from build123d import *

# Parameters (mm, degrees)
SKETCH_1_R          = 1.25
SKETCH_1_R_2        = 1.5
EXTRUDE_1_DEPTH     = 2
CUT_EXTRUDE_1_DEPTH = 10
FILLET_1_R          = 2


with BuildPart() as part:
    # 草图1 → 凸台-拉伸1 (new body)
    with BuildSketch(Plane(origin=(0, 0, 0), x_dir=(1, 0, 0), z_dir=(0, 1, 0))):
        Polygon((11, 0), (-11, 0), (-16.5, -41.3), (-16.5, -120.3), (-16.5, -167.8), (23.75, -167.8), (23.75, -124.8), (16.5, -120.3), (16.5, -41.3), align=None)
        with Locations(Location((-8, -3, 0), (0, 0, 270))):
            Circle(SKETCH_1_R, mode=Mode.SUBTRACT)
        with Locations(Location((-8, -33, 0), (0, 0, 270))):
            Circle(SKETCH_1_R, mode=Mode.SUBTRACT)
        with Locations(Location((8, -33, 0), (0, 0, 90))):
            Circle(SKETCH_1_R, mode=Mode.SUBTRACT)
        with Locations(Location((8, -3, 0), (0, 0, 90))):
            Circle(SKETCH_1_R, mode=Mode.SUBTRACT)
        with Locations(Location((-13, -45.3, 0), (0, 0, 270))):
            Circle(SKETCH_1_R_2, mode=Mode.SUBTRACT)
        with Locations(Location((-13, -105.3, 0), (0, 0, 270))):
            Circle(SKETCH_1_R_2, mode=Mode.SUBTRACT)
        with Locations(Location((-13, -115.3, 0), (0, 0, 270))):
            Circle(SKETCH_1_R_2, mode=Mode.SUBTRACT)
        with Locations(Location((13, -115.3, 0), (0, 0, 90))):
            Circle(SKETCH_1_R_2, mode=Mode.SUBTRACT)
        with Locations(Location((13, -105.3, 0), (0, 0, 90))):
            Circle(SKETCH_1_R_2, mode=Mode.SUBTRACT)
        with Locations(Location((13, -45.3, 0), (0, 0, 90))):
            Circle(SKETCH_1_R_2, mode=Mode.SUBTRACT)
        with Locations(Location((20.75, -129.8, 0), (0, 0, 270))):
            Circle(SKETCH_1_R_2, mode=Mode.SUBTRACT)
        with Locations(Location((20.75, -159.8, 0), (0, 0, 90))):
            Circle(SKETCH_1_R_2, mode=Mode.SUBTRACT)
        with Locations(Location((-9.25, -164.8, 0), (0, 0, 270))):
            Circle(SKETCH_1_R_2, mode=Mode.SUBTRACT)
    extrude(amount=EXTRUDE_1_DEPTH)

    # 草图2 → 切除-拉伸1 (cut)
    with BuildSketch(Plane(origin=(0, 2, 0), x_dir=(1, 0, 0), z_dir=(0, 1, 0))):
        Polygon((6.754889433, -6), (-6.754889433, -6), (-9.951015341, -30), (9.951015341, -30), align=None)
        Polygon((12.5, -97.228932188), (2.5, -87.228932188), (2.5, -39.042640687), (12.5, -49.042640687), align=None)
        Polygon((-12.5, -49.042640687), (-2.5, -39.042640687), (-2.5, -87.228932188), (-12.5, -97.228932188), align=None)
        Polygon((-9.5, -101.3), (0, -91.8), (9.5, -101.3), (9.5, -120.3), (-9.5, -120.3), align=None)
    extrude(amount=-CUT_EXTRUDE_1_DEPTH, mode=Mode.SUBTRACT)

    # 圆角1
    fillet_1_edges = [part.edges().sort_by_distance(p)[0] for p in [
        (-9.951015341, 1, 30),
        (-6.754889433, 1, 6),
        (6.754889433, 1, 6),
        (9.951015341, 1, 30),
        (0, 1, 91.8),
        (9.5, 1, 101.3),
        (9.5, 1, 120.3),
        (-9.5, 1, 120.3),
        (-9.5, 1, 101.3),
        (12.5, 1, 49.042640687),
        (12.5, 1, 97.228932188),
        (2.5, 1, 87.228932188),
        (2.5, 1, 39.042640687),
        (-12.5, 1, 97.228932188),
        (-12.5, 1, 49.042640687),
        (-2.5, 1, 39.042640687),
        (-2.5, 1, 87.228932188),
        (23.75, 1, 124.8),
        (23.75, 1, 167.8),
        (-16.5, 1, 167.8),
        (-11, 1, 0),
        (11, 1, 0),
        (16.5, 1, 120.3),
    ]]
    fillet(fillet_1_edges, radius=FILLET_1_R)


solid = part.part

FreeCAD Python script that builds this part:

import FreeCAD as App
import Part
import Sketcher

V = App.Vector
Q = App.Units.Quantity


def edges_at(feature, points):
    """Names of the edges that pass closest to the given points."""
    edges = feature.Shape.Edges
    near = lambda p: min(range(len(edges)), key=lambda i: edges[i].distToShape(Part.Vertex(*p))[0])
    return sorted({f"Edge{near(p) + 1}" for p in points})


def add_polygon(sketch, points):
    """Adds a closed chain of lines whose ends are joined by coincident constraints."""
    first, n = sketch.GeometryCount, len(points)
    for a, b in zip(points, points[1:] + points[:1]):
        sketch.addGeometry(Part.LineSegment(App.Vector(*a, 0), App.Vector(*b, 0)), False)
    for i in range(n):
        sketch.addConstraint(Sketcher.Constraint("Coincident", first + i, 2, first + (i + 1) % n, 1))

doc = App.newDocument("Part")
body = doc.addObject("PartDesign::Body", "Body")

# Sketch on XZ plane
sketch1 = doc.addObject("Sketcher::SketchObject", "Sketch")
body.addObject(sketch1)
sketch1.AttachmentSupport = (doc.XZ_Plane, [""])
sketch1.MapMode = "FlatFace"
add_polygon(sketch1, [(11, 0), (-11, 0), (-16.5, 41.3), (-16.5, 167.8), (23.75, 167.8), (23.75, 124.8), (16.5, 120.3), (16.5, 41.3)])  # lines 0-7
sketch1.addGeometry(Part.Circle(V(-9.25, 164.8, 0), V(0, 0, 1), 1.5), False)  # 8
sketch1.addGeometry(Part.Circle(V(-13, 115.3, 0), V(0, 0, 1), 1.5), False)  # 9
sketch1.addGeometry(Part.Circle(V(-13, 105.3, 0), V(0, 0, 1), 1.5), False)  # 10
sketch1.addGeometry(Part.Circle(V(20.75, 159.8, 0), V(0, 0, 1), 1.5), False)  # 11
sketch1.addGeometry(Part.Circle(V(20.75, 129.8, 0), V(0, 0, 1), 1.5), False)  # 12
sketch1.addGeometry(Part.Circle(V(13, 115.3, 0), V(0, 0, 1), 1.5), False)  # 13
sketch1.addGeometry(Part.Circle(V(13, 105.3, 0), V(0, 0, 1), 1.5), False)  # 14
sketch1.addGeometry(Part.Circle(V(-13, 45.3, 0), V(0, 0, 1), 1.5), False)  # 15
sketch1.addGeometry(Part.Circle(V(-8, 33, 0), V(0, 0, 1), 1.25), False)  # 16
sketch1.addGeometry(Part.Circle(V(-8, 3, 0), V(0, 0, 1), 1.25), False)  # 17
sketch1.addGeometry(Part.Circle(V(13, 45.3, 0), V(0, 0, 1), 1.5), False)  # 18
sketch1.addGeometry(Part.Circle(V(8, 33, 0), V(0, 0, 1), 1.25), False)  # 19
sketch1.addGeometry(Part.Circle(V(8, 3, 0), V(0, 0, 1), 1.25), False)  # 20
sketch1.addConstraint([
    Sketcher.Constraint("Horizontal", 0),
    Sketcher.Constraint("Vertical", 2),
    Sketcher.Constraint("Horizontal", 3),
    Sketcher.Constraint("Vertical", 4),
    Sketcher.Constraint("Vertical", 6),
    Sketcher.Constraint("Equal", 8, 9),
    Sketcher.Constraint("Equal", 9, 10),
    Sketcher.Constraint("Equal", 10, 11),
    Sketcher.Constraint("Equal", 11, 12),
    Sketcher.Constraint("Equal", 12, 13),
    Sketcher.Constraint("Equal", 13, 14),
    Sketcher.Constraint("Equal", 14, 15),
    Sketcher.Constraint("Equal", 16, 17),
    Sketcher.Constraint("Equal", 15, 18),
    Sketcher.Constraint("Equal", 17, 19),
    Sketcher.Constraint("Equal", 19, 20),
    Sketcher.Constraint("Symmetric", 0, 2, 7, 2, -1, 1),
    Sketcher.Constraint("Symmetric", 9, 3, 13, 3, -2),
    Sketcher.Constraint("Symmetric", 10, 3, 14, 3, -2),
    Sketcher.Constraint("Symmetric", 15, 3, 18, 3, -2),
    Sketcher.Constraint("Symmetric", 16, 3, 19, 3, -2),
    Sketcher.Constraint("Symmetric", 17, 3, 20, 3, -2),
    Sketcher.Constraint("Symmetric", 1, 2, 6, 2, -2),
    Sketcher.Constraint("Vertical", 9, 3, 10, 3),
    Sketcher.Constraint("Vertical", 11, 3, 12, 3),
    Sketcher.Constraint("Vertical", 10, 3, 15, 3),
    Sketcher.Constraint("Vertical", 16, 3, 17, 3),
    Sketcher.Constraint("Diameter", 8, Q("3 mm")),
    Sketcher.Constraint("Diameter", 16, Q("2.5 mm")),
    Sketcher.Constraint("DistanceX", 0, 2, 0, 1, Q("22 mm")),
    Sketcher.Constraint("DistanceY", 4, 2, 4, 1, Q("43 mm")),
    Sketcher.Constraint("DistanceY", 6, 2, 6, 1, Q("79 mm")),
    Sketcher.Constraint("DistanceY", 2, 1, 2, 2, Q("126.5 mm")),
    Sketcher.Constraint("DistanceX", 9, 3, -1, 1, Q("13 mm")),
    Sketcher.Constraint("DistanceX", 16, 3, -1, 1, Q("8 mm")),
    Sketcher.Constraint("DistanceY", -1, 1, 16, 3, Q("33 mm")),
    Sketcher.Constraint("DistanceY", -1, 1, 17, 3, Q("3 mm")),
    Sketcher.Constraint("DistanceY", 10, 3, 9, 3, Q("10 mm")),
    Sketcher.Constraint("DistanceX", 8, 3, 11, 3, Q("30 mm")),
    Sketcher.Constraint("DistanceY", 11, 3, 8, 3, Q("5 mm")),
    Sketcher.Constraint("DistanceY", 12, 3, 11, 3, Q("30 mm")),
    Sketcher.Constraint("DistanceY", 15, 3, 10, 3, Q("60 mm")),
    Sketcher.Constraint("DistanceY", 1, 2, 15, 3, Q("4 mm")),
    Sketcher.Constraint("DistanceY", 8, 3, 2, 2, Q("3 mm")),
    Sketcher.Constraint("DistanceX", 11, 3, 3, 2, Q("3 mm")),
    Sketcher.Constraint("DistanceX", 1, 2, 6, 2, Q("33 mm")),
    Sketcher.Constraint("DistanceX", 3, 1, 3, 2, Q("40.25 mm")),
    Sketcher.Constraint("DistanceY", -1, 1, 8, 3, Q("164.8 mm")),
])
pad1 = doc.addObject("PartDesign::Pad", "Pad")
body.addObject(pad1)
pad1.Profile = sketch1
pad1.Length = 2
pad1.Reversed = True

# Sketch on XZ plane
sketch2 = doc.addObject("Sketcher::SketchObject", "Sketch001")
body.addObject(sketch2)
sketch2.AttachmentSupport = (doc.XZ_Plane, [""])
sketch2.MapMode = "FlatFace"
sketch2.AttachmentOffset = App.Placement(V(0, 0, -2), App.Rotation())
add_polygon(sketch2, [(6.754889, 6), (-6.754889, 6), (-9.951015, 30), (9.951015, 30)])  # lines 0-3
add_polygon(sketch2, [(2.5, 87.228932), (12.5, 97.228932), (12.5, 49.042641), (2.5, 39.042641)])  # lines 4-7
add_polygon(sketch2, [(-2.5, 39.042641), (-12.5, 49.042641), (-12.5, 97.228932), (-2.5, 87.228932)])  # lines 8-11
add_polygon(sketch2, [(0, 91.8), (-9.5, 101.3), (-9.5, 120.3), (9.5, 120.3), (9.5, 101.3)])  # lines 12-16
sketch2.addConstraint([
    Sketcher.Constraint("Horizontal", 0),
    Sketcher.Constraint("Horizontal", 2),
    Sketcher.Constraint("Vertical", 5),
    Sketcher.Constraint("Vertical", 7),
    Sketcher.Constraint("Vertical", 9),
    Sketcher.Constraint("Vertical", 11),
    Sketcher.Constraint("Vertical", 13),
    Sketcher.Constraint("Horizontal", 14),
    Sketcher.Constraint("Vertical", 15),
    Sketcher.Constraint("Symmetric", 5, 2, 8, 2, -2),
    Sketcher.Constraint("Symmetric", 7, 2, 10, 2, -2),
    Sketcher.Constraint("Symmetric", 12, 2, 15, 2, -2),
    Sketcher.Constraint("PointOnObject", 16, 2, -2),
    Sketcher.Constraint("Parallel", 4, 6),
    Sketcher.Constraint("Perpendicular", 6, 8),
    Sketcher.Constraint("Parallel", 8, 10),
    Sketcher.Constraint("Parallel", 10, 12),
    Sketcher.Constraint("Perpendicular", 12, 16),
    Sketcher.Constraint("Equal", 14, 13),
    Sketcher.Constraint("Equal", 1, 3),
    Sketcher.Constraint("DistanceX", 14, 1, 14, 2, Q("19 mm")),
    Sketcher.Constraint("DistanceY", -1, 1, 0, 2, Q("6 mm")),
    Sketcher.Constraint("DistanceY", -1, 1, 1, 2, Q("30 mm")),
    Sketcher.Constraint("DistanceX", 6, 2, 5, 2, Q("10 mm")),
    Sketcher.Constraint("DistanceX", 8, 2, 6, 2, Q("15 mm")),
    Sketcher.Constraint("DistanceY", -1, 1, 12, 2, Q("101.3 mm")),
    Sketcher.Constraint("DistanceX", 0, 2, 0, 1, Q("13.509779 mm")),
    Sketcher.Constraint("DistanceX", 2, 1, 2, 2, Q("19.902031 mm")),
    Sketcher.Constraint("DistanceY", 5, 2, 5, 1, Q("48.186292 mm")),
    Sketcher.Constraint("DistanceX", 0, 2, -1, 1, Q("6.754889 mm")),
    Sketcher.Constraint("DistanceY", -1, 1, 5, 2, Q("49.042641 mm")),
])
pocket1 = doc.addObject("PartDesign::Pocket", "Pocket")
body.addObject(pocket1)
pocket1.Profile = sketch2
pocket1.Length = 10
pocket1.Reversed = True
doc.recompute()

fillet = doc.addObject("PartDesign::Fillet", "Fillet")
body.addObject(fillet)
fillet.Base = (pocket1, edges_at(pocket1, [
    (-9.951, 1, 30),
    (-6.755, 1, 6),
    (6.755, 1, 6),
    (9.951, 1, 30),
    (0, 1, 91.8),
    (9.5, 1, 101.3),
    (9.5, 1, 120.3),
    (-9.5, 1, 120.3),
    (-9.5, 1, 101.3),
    (12.5, 1, 49.043),
    (12.5, 1, 97.229),
    (2.5, 1, 87.229),
    (2.5, 1, 39.043),
    (-12.5, 1, 97.229),
    (-12.5, 1, 49.043),
    (-2.5, 1, 39.043),
    (-2.5, 1, 87.229),
    (23.75, 1, 124.8),
    (23.75, 1, 167.8),
    (-16.5, 1, 167.8),
    (-11, 1, 0),
    (11, 1, 0),
    (16.5, 1, 120.3),
]))
fillet.Radius = 2

doc.recompute()
